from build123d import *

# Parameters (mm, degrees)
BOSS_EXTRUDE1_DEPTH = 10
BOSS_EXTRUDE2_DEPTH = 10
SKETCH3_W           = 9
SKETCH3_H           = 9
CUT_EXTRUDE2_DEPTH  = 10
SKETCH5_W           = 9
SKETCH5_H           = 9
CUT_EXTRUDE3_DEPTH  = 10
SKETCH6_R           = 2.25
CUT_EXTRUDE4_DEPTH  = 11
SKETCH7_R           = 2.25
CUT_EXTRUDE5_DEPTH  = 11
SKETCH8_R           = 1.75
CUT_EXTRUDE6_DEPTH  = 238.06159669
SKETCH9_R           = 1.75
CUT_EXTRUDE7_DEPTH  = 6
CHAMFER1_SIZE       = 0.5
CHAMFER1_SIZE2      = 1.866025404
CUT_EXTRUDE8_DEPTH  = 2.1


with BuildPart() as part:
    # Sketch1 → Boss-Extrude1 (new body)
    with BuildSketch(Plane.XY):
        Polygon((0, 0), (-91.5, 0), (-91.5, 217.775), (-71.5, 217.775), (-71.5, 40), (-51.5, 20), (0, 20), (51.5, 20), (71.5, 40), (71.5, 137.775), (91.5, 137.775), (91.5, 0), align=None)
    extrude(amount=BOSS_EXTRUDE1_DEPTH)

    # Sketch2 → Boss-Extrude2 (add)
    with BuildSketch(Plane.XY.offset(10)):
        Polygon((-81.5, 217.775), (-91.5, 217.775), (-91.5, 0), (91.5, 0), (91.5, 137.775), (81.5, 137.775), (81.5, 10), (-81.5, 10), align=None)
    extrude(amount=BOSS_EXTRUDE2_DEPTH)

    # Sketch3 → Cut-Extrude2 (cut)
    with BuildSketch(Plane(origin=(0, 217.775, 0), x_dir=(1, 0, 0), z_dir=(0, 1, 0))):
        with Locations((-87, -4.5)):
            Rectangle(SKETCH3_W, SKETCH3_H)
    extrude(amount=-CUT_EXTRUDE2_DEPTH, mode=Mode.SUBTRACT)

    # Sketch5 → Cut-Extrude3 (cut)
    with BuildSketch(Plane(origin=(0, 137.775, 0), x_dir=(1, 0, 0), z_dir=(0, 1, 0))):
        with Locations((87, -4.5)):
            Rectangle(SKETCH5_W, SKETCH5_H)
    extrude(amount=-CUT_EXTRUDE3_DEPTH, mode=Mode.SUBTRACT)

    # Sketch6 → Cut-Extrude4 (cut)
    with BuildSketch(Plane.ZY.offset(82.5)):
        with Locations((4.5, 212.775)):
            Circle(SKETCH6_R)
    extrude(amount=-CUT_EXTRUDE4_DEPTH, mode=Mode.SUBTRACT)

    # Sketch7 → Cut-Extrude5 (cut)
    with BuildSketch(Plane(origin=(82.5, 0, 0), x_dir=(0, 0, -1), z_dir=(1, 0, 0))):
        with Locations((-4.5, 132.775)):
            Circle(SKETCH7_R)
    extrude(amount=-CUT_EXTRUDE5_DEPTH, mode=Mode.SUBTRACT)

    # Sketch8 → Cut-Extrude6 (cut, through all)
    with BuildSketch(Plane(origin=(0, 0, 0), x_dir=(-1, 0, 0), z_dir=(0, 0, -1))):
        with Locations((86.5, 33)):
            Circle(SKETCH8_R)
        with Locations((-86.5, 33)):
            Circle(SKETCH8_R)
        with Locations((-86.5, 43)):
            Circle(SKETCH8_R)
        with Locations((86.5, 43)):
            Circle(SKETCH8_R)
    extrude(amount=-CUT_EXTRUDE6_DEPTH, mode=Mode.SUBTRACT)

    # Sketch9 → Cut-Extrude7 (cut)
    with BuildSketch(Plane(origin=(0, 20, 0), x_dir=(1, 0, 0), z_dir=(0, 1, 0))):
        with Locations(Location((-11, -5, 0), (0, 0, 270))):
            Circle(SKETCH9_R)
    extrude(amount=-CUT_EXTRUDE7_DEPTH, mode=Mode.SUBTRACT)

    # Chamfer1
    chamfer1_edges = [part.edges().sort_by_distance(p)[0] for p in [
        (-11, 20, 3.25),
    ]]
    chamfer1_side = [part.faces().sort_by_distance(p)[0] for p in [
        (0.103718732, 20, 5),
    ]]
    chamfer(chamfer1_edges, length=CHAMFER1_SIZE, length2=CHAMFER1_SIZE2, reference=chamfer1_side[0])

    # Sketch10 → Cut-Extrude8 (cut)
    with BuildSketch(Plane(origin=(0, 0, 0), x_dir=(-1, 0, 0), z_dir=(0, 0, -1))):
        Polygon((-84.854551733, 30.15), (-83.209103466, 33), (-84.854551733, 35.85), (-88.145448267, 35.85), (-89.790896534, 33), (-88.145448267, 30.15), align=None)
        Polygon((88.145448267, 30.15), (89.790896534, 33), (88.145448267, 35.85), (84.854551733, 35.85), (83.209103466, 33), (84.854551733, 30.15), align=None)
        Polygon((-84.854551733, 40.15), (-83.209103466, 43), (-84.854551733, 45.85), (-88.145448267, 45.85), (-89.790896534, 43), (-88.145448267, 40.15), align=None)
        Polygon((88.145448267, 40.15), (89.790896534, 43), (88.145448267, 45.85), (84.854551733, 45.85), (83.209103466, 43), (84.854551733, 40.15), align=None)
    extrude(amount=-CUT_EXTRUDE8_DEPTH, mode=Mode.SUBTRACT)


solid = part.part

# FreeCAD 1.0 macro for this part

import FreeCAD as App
import Part
import Sketcher

V = App.Vector
Q = App.Units.Quantity


def edges_at(feature, points):
    """Names of the edges that pass closest to the given points."""
    edges = feature.Shape.Edges
    near = lambda p: min(range(len(edges)), key=lambda i: edges[i].distToShape(Part.Vertex(*p))[0])
    return sorted({f"Edge{near(p) + 1}" for p in points})

doc = App.newDocument("Part")
body = doc.addObject("PartDesign::Body", "Body")

# Sketch on XY plane
sketch1 = body.newObject("Sketcher::SketchObject", "Sketch")
sketch1.AttachmentSupport = (doc.getObject("XY_Plane"), [""])
sketch1.MapMode = "FlatFace"
sketch1.addGeometry(Part.LineSegment(V(-92, 0, 0), V(92, 0, 0)), False)
sketch1.addGeometry(Part.LineSegment(V(92, 0, 0), V(92, 138, 0)), False)
sketch1.addGeometry(Part.LineSegment(V(92, 138, 0), V(72, 138, 0)), False)
sketch1.addGeometry(Part.LineSegment(V(72, 138, 0), V(72, 40, 0)), False)
sketch1.addGeometry(Part.LineSegment(V(72, 40, 0), V(52, 20, 0)), False)
sketch1.addGeometry(Part.LineSegment(V(52, 20, 0), V(-52, 20, 0)), False)
sketch1.addGeometry(Part.LineSegment(V(-52, 20, 0), V(-72, 40, 0)), False)
sketch1.addGeometry(Part.LineSegment(V(-72, 40, 0), V(-72, 218, 0)), False)
sketch1.addGeometry(Part.LineSegment(V(-72, 218, 0), V(-92, 218, 0)), False)
sketch1.addGeometry(Part.LineSegment(V(-92, 218, 0), V(-92, 0, 0)), False)
sketch1.addConstraint(Sketcher.Constraint("Coincident", 0, 2, 1, 1))
sketch1.addConstraint(Sketcher.Constraint("Coincident", 1, 2, 2, 1))
sketch1.addConstraint(Sketcher.Constraint("Coincident", 2, 2, 3, 1))
sketch1.addConstraint(Sketcher.Constraint("Coincident", 3, 2, 4, 1))
sketch1.addConstraint(Sketcher.Constraint("Coincident", 4, 2, 5, 1))
sketch1.addConstraint(Sketcher.Constraint("Coincident", 5, 2, 6, 1))
sketch1.addConstraint(Sketcher.Constraint("Coincident", 6, 2, 7, 1))
sketch1.addConstraint(Sketcher.Constraint("Coincident", 7, 2, 8, 1))
sketch1.addConstraint(Sketcher.Constraint("Coincident", 8, 2, 9, 1))
sketch1.addConstraint(Sketcher.Constraint("Coincident", 9, 2, 0, 1))
sketch1.addConstraint(Sketcher.Constraint("Horizontal", 0))
sketch1.addConstraint(Sketcher.Constraint("Vertical", 1))
sketch1.addConstraint(Sketcher.Constraint("Horizontal", 2))
sketch1.addConstraint(Sketcher.Constraint("Vertical", 3))
sketch1.addConstraint(Sketcher.Constraint("Horizontal", 5))
sketch1.addConstraint(Sketcher.Constraint("Vertical", 7))
sketch1.addConstraint(Sketcher.Constraint("Horizontal", 8))
sketch1.addConstraint(Sketcher.Constraint("Vertical", 9))
sketch1.addConstraint(Sketcher.Constraint("Symmetric", 0, 2, 9, 2, -1, 1))
sketch1.addConstraint(Sketcher.Constraint("Symmetric", 3, 2, 6, 2, -2))
sketch1.addConstraint(Sketcher.Constraint("Perpendicular", 4, 6))
sketch1.addConstraint(Sketcher.Constraint("Equal", 4, 6))
sketch1.addConstraint(Sketcher.Constraint("DistanceX", 0, 1, 0, 2, 183.0))
sketch1.addConstraint(Sketcher.Constraint("DistanceX", 2, 2, 2, 1, 20.0))
sketch1.addConstraint(Sketcher.Constraint("DistanceX", 5, 2, 5, 1, 103.0))
sketch1.addConstraint(Sketcher.Constraint("DistanceY", -1, 1, 3, 2, 40.0))
sketch1.addConstraint(Sketcher.Constraint("DistanceY", 2, 2, 7, 2, 80.0))
sketch1.addConstraint(Sketcher.Constraint("DistanceY", 1, 1, 1, 2, 137.775))
pad1 = body.newObject("PartDesign::Pad", "Pad")
pad1.Profile = sketch1
pad1.Length = 10

# Sketch on XY plane
sketch2 = body.newObject("Sketcher::SketchObject", "Sketch001")
sketch2.AttachmentSupport = (doc.getObject("XY_Plane"), [""])
sketch2.MapMode = "FlatFace"
sketch2.AttachmentOffset = App.Placement(V(0, 0, 10), App.Rotation())
sketch2.addGeometry(Part.LineSegment(V(-82, 218, 0), V(-92, 218, 0)), False)
sketch2.addGeometry(Part.LineSegment(V(-92, 218, 0), V(-92, 0, 0)), False)
sketch2.addGeometry(Part.LineSegment(V(-92, 0, 0), V(92, 0, 0)), False)
sketch2.addGeometry(Part.LineSegment(V(92, 0, 0), V(92, 138, 0)), False)
sketch2.addGeometry(Part.LineSegment(V(92, 138, 0), V(82, 138, 0)), False)
sketch2.addGeometry(Part.LineSegment(V(82, 138, 0), V(82, 10, 0)), False)
sketch2.addGeometry(Part.LineSegment(V(82, 10, 0), V(-82, 10, 0)), False)
sketch2.addGeometry(Part.LineSegment(V(-82, 10, 0), V(-82, 218, 0)), False)
sketch2.addConstraint(Sketcher.Constraint("Coincident", 0, 2, 1, 1))
sketch2.addConstraint(Sketcher.Constraint("Coincident", 1, 2, 2, 1))
sketch2.addConstraint(Sketcher.Constraint("Coincident", 2, 2, 3, 1))
sketch2.addConstraint(Sketcher.Constraint("Coincident", 3, 2, 4, 1))
sketch2.addConstraint(Sketcher.Constraint("Coincident", 4, 2, 5, 1))
sketch2.addConstraint(Sketcher.Constraint("Coincident", 5, 2, 6, 1))
sketch2.addConstraint(Sketcher.Constraint("Coincident", 6, 2, 7, 1))
sketch2.addConstraint(Sketcher.Constraint("Coincident", 7, 2, 0, 1))
sketch2.addConstraint(Sketcher.Constraint("Horizontal", 0))
sketch2.addConstraint(Sketcher.Constraint("Vertical", 1))
sketch2.addConstraint(Sketcher.Constraint("Horizontal", 2))
sketch2.addConstraint(Sketcher.Constraint("Vertical", 3))
sketch2.addConstraint(Sketcher.Constraint("Horizontal", 4))
sketch2.addConstraint(Sketcher.Constraint("Vertical", 5))
sketch2.addConstraint(Sketcher.Constraint("Horizontal", 6))
sketch2.addConstraint(Sketcher.Constraint("Vertical", 7))
sketch2.addConstraint(Sketcher.Constraint("Symmetric", 1, 2, 2, 2, -1, 1))
sketch2.addConstraint(Sketcher.Constraint("Equal", 0, 4))
sketch2.addConstraint(Sketcher.Constraint("DistanceX", 0, 2, 0, 1, 10.0))
sketch2.addConstraint(Sketcher.Constraint("DistanceX", 2, 1, 2, 2, 183.0))
sketch2.addConstraint(Sketcher.Constraint("DistanceY", -1, 1, 5, 2, 10.0))
sketch2.addConstraint(Sketcher.Constraint("DistanceY", 3, 2, 0, 2, 80.0))
sketch2.addConstraint(Sketcher.Constraint("DistanceY", 1, 2, 1, 1, 217.775))
pad2 = body.newObject("PartDesign::Pad", "Pad001")
pad2.Profile = sketch2
pad2.Length = 10

# Sketch on XZ plane
sketch3 = body.newObject("Sketcher::SketchObject", "Sketch002")
sketch3.AttachmentSupport = (doc.getObject("XZ_Plane"), [""])
sketch3.MapMode = "FlatFace"
sketch3.AttachmentOffset = App.Placement(V(0, 0, -217.775), App.Rotation())
sketch3.addGeometry(Part.LineSegment(V(-92, 0, 0), V(-92, 9, 0)), False)
sketch3.addGeometry(Part.LineSegment(V(-92, 9, 0), V(-82, 9, 0)), False)
sketch3.addGeometry(Part.LineSegment(V(-82, 9, 0), V(-82, 0, 0)), False)
sketch3.addGeometry(Part.LineSegment(V(-82, 0, 0), V(-92, 0, 0)), False)
sketch3.addConstraint(Sketcher.Constraint("Coincident", 0, 2, 1, 1))
sketch3.addConstraint(Sketcher.Constraint("Coincident", 1, 2, 2, 1))
sketch3.addConstraint(Sketcher.Constraint("Coincident", 2, 2, 3, 1))
sketch3.addConstraint(Sketcher.Constraint("Coincident", 3, 2, 0, 1))
sketch3.addConstraint(Sketcher.Constraint("Vertical", 0))
sketch3.addConstraint(Sketcher.Constraint("Horizontal", 1))
sketch3.addConstraint(Sketcher.Constraint("Vertical", 2))
sketch3.addConstraint(Sketcher.Constraint("Horizontal", 3))
sketch3.addConstraint(Sketcher.Constraint("PointOnObject", 2, 2, -1))
sketch3.addConstraint(Sketcher.Constraint("Equal", 3, 0))
sketch3.addConstraint(Sketcher.Constraint("DistanceX", 1, 1, 1, 2, 9.0))
sketch3.addConstraint(Sketcher.Constraint("DistanceX", 0, 2, -1, 1, 91.5))
pocket1 = body.newObject("PartDesign::Pocket", "Pocket")
pocket1.Profile = sketch3
pocket1.Length = 10
pocket1.Reversed = True

# Sketch on XZ plane
sketch4 = body.newObject("Sketcher::SketchObject", "Sketch003")
sketch4.AttachmentSupport = (doc.getObject("XZ_Plane"), [""])
sketch4.MapMode = "FlatFace"
sketch4.AttachmentOffset = App.Placement(V(0, 0, -137.775), App.Rotation())
sketch4.addGeometry(Part.LineSegment(V(82, 0, 0), V(82, 9, 0)), False)
sketch4.addGeometry(Part.LineSegment(V(82, 9, 0), V(92, 9, 0)), False)
sketch4.addGeometry(Part.LineSegment(V(92, 9, 0), V(92, 0, 0)), False)
sketch4.addGeometry(Part.LineSegment(V(92, 0, 0), V(82, 0, 0)), False)
sketch4.addConstraint(Sketcher.Constraint("Coincident", 0, 2, 1, 1))
sketch4.addConstraint(Sketcher.Constraint("Coincident", 1, 2, 2, 1))
sketch4.addConstraint(Sketcher.Constraint("Coincident", 2, 2, 3, 1))
sketch4.addConstraint(Sketcher.Constraint("Coincident", 3, 2, 0, 1))
sketch4.addConstraint(Sketcher.Constraint("Vertical", 0))
sketch4.addConstraint(Sketcher.Constraint("Horizontal", 1))
sketch4.addConstraint(Sketcher.Constraint("Vertical", 2))
sketch4.addConstraint(Sketcher.Constraint("Horizontal", 3))
sketch4.addConstraint(Sketcher.Constraint("PointOnObject", 2, 2, -1))
sketch4.addConstraint(Sketcher.Constraint("Equal", 3, 0))
sketch4.addConstraint(Sketcher.Constraint("DistanceX", 1, 1, 1, 2, 9.0))
sketch4.addConstraint(Sketcher.Constraint("DistanceX", -1, 1, 0, 2, 82.5))
pocket2 = body.newObject("PartDesign::Pocket", "Pocket001")
pocket2.Profile = sketch4
pocket2.Length = 10
pocket2.Reversed = True

# Sketch on YZ plane
sketch5 = body.newObject("Sketcher::SketchObject", "Sketch004")
sketch5.AttachmentSupport = (doc.getObject("YZ_Plane"), [""])
sketch5.MapMode = "FlatFace"
sketch5.AttachmentOffset = App.Placement(V(0, 0, -82.5), App.Rotation())
sketch5.addGeometry(Part.Circle(V(212.8, 4.5, 0), V(0, 0, 1), 2.2), False)
sketch5.addConstraint(Sketcher.Constraint("Diameter", 0, 4.5))
sketch5.addConstraint(Sketcher.Constraint("DistanceY", -1, 1, 0, 3, 4.5))
sketch5.addConstraint(Sketcher.Constraint("DistanceX", -1, 1, 0, 3, 212.775))
pocket3 = body.newObject("PartDesign::Pocket", "Pocket002")
pocket3.Profile = sketch5
pocket3.Length = 11
pocket3.Reversed = True

# Sketch on YZ plane
sketch6 = body.newObject("Sketcher::SketchObject", "Sketch005")
sketch6.AttachmentSupport = (doc.getObject("YZ_Plane"), [""])
sketch6.MapMode = "FlatFace"
sketch6.AttachmentOffset = App.Placement(V(0, 0, 82.5), App.Rotation())
sketch6.addGeometry(Part.Circle(V(132.8, 4.5, 0), V(0, 0, 1), 2.2), False)
sketch6.addConstraint(Sketcher.Constraint("Diameter", 0, 4.5))
sketch6.addConstraint(Sketcher.Constraint("DistanceY", -1, 1, 0, 3, 4.5))
sketch6.addConstraint(Sketcher.Constraint("DistanceX", -1, 1, 0, 3, 132.775))
pocket4 = body.newObject("PartDesign::Pocket", "Pocket003")
pocket4.Profile = sketch6
pocket4.Length = 11

# Sketch on XY plane
sketch7 = body.newObject("Sketcher::SketchObject", "Sketch006")
sketch7.AttachmentSupport = (doc.getObject("XY_Plane"), [""])
sketch7.MapMode = "FlatFace"
sketch7.addGeometry(Part.Circle(V(-86.5, 33, 0), V(0, 0, 1), 1.8), False)
sketch7.addGeometry(Part.Circle(V(86.5, 33, 0), V(0, 0, 1), 1.8), False)
sketch7.addGeometry(Part.Circle(V(86.5, 43, 0), V(0, 0, 1), 1.8), False)
sketch7.addGeometry(Part.Circle(V(-86.5, 43, 0), V(0, 0, 1), 1.8), False)
sketch7.addConstraint(Sketcher.Constraint("Equal", 0, 1))
sketch7.addConstraint(Sketcher.Constraint("Equal", 1, 2))
sketch7.addConstraint(Sketcher.Constraint("Equal", 2, 3))
sketch7.addConstraint(Sketcher.Constraint("Symmetric", 0, 3, 1, 3, -2))
sketch7.addConstraint(Sketcher.Constraint("Symmetric", 2, 3, 3, 3, -2))
sketch7.addConstraint(Sketcher.Constraint("Vertical", 1, 3, 2, 3))
sketch7.addConstraint(Sketcher.Constraint("Diameter", 0, 3.5))
sketch7.addConstraint(Sketcher.Constraint("DistanceY", -1, 1, 0, 3, 33.0))
sketch7.addConstraint(Sketcher.Constraint("DistanceY", -1, 1, 2, 3, 43.0))
sketch7.addConstraint(Sketcher.Constraint("DistanceX", 0, 3, 1, 3, 173.0))
pocket5 = body.newObject("PartDesign::Pocket", "Pocket004")
pocket5.Profile = sketch7
pocket5.Type = "ThroughAll"
pocket5.Reversed = True

# Sketch on XZ plane
sketch8 = body.newObject("Sketcher::SketchObject", "Sketch007")
sketch8.AttachmentSupport = (doc.getObject("XZ_Plane"), [""])
sketch8.MapMode = "FlatFace"
sketch8.AttachmentOffset = App.Placement(V(0, 0, -20), App.Rotation())
sketch8.addGeometry(Part.Circle(V(-11, 5, 0), V(0, 0, 1), 1.8), False)
sketch8.addConstraint(Sketcher.Constraint("Diameter", 0, 3.5))
sketch8.addConstraint(Sketcher.Constraint("DistanceX", 0, 3, -1, 1, 11.0))
sketch8.addConstraint(Sketcher.Constraint("DistanceY", -1, 1, 0, 3, 5.0))
pocket6 = body.newObject("PartDesign::Pocket", "Pocket005")
pocket6.Profile = sketch8
pocket6.Length = 6
pocket6.Reversed = True
doc.recompute()

chamfer = body.newObject("PartDesign::Chamfer", "Chamfer")
chamfer.Base = (pocket6, edges_at(pocket6, [(-11, 20, 3.25)]))
chamfer.ChamferType = "Two distances"
chamfer.Size = 0.5
chamfer.Size2 = 1.866025

# Sketch on XY plane
sketch9 = body.newObject("Sketcher::SketchObject", "Sketch008")
sketch9.AttachmentSupport = (doc.getObject("XY_Plane"), [""])
sketch9.MapMode = "FlatFace"
sketch9.addGeometry(Part.LineSegment(V(84.9, 30.1, 0), V(83.2, 33, 0)), False)
sketch9.addGeometry(Part.LineSegment(V(83.2, 33, 0), V(84.9, 35.9, 0)), False)
sketch9.addGeometry(Part.LineSegment(V(84.9, 35.9, 0), V(88.1, 35.9, 0)), False)
sketch9.addGeometry(Part.LineSegment(V(88.1, 35.9, 0), V(89.8, 33, 0)), False)
sketch9.addGeometry(Part.LineSegment(V(89.8, 33, 0), V(88.1, 30.1, 0)), False)
sketch9.addGeometry(Part.LineSegment(V(88.1, 30.1, 0), V(84.9, 30.1, 0)), False)
sketch9.addGeometry(Part.LineSegment(V(-88.1, 30.1, 0), V(-89.8, 33, 0)), False)
sketch9.addGeometry(Part.LineSegment(V(-89.8, 33, 0), V(-88.1, 35.9, 0)), False)
sketch9.addGeometry(Part.LineSegment(V(-88.1, 35.9, 0), V(-84.9, 35.9, 0)), False)
sketch9.addGeometry(Part.LineSegment(V(-84.9, 35.9, 0), V(-83.2, 33, 0)), False)
sketch9.addGeometry(Part.LineSegment(V(-83.2, 33, 0), V(-84.9, 30.1, 0)), False)
sketch9.addGeometry(Part.LineSegment(V(-84.9, 30.1, 0), V(-88.1, 30.1, 0)), False)
sketch9.addGeometry(Part.LineSegment(V(84.9, 40.1, 0), V(83.2, 43, 0)), False)
sketch9.addGeometry(Part.LineSegment(V(83.2, 43, 0), V(84.9, 45.9, 0)), False)
sketch9.addGeometry(Part.LineSegment(V(84.9, 45.9, 0), V(88.1, 45.9, 0)), False)
sketch9.addGeometry(Part.LineSegment(V(88.1, 45.9, 0), V(89.8, 43, 0)), False)
sketch9.addGeometry(Part.LineSegment(V(89.8, 43, 0), V(88.1, 40.1, 0)), False)
sketch9.addGeometry(Part.LineSegment(V(88.1, 40.1, 0), V(84.9, 40.1, 0)), False)
sketch9.addGeometry(Part.LineSegment(V(-88.1, 40.1, 0), V(-89.8, 43, 0)), False)
sketch9.addGeometry(Part.LineSegment(V(-89.8, 43, 0), V(-88.1, 45.9, 0)), False)
sketch9.addGeometry(Part.LineSegment(V(-88.1, 45.9, 0), V(-84.9, 45.9, 0)), False)
sketch9.addGeometry(Part.LineSegment(V(-84.9, 45.9, 0), V(-83.2, 43, 0)), False)
sketch9.addGeometry(Part.LineSegment(V(-83.2, 43, 0), V(-84.9, 40.1, 0)), False)
sketch9.addGeometry(Part.LineSegment(V(-84.9, 40.1, 0), V(-88.1, 40.1, 0)), False)
sketch9.addConstraint(Sketcher.Constraint("Coincident", 0, 2, 1, 1))
sketch9.addConstraint(Sketcher.Constraint("Coincident", 1, 2, 2, 1))
sketch9.addConstraint(Sketcher.Constraint("Coincident", 2, 2, 3, 1))
sketch9.addConstraint(Sketcher.Constraint("Coincident", 3, 2, 4, 1))
sketch9.addConstraint(Sketcher.Constraint("Coincident", 4, 2, 5, 1))
sketch9.addConstraint(Sketcher.Constraint("Coincident", 5, 2, 0, 1))
sketch9.addConstraint(Sketcher.Constraint("Coincident", 6, 2, 7, 1))
sketch9.addConstraint(Sketcher.Constraint("Coincident", 7, 2, 8, 1))
sketch9.addConstraint(Sketcher.Constraint("Coincident", 8, 2, 9, 1))
sketch9.addConstraint(Sketcher.Constraint("Coincident", 9, 2, 10, 1))
sketch9.addConstraint(Sketcher.Constraint("Coincident", 10, 2, 11, 1))
sketch9.addConstraint(Sketcher.Constraint("Coincident", 11, 2, 6, 1))
sketch9.addConstraint(Sketcher.Constraint("Coincident", 12, 2, 13, 1))
sketch9.addConstraint(Sketcher.Constraint("Coincident", 13, 2, 14, 1))
sketch9.addConstraint(Sketcher.Constraint("Coincident", 14, 2, 15, 1))
sketch9.addConstraint(Sketcher.Constraint("Coincident", 15, 2, 16, 1))
sketch9.addConstraint(Sketcher.Constraint("Coincident", 16, 2, 17, 1))
sketch9.addConstraint(Sketcher.Constraint("Coincident", 17, 2, 12, 1))
sketch9.addConstraint(Sketcher.Constraint("Coincident", 18, 2, 19, 1))
sketch9.addConstraint(Sketcher.Constraint("Coincident", 19, 2, 20, 1))
sketch9.addConstraint(Sketcher.Constraint("Coincident", 20, 2, 21, 1))
sketch9.addConstraint(Sketcher.Constraint("Coincident", 21, 2, 22, 1))
sketch9.addConstraint(Sketcher.Constraint("Coincident", 22, 2, 23, 1))
sketch9.addConstraint(Sketcher.Constraint("Coincident", 23, 2, 18, 1))
sketch9.addConstraint(Sketcher.Constraint("Horizontal", 2))
sketch9.addConstraint(Sketcher.Constraint("Horizontal", 5))
sketch9.addConstraint(Sketcher.Constraint("Horizontal", 8))
sketch9.addConstraint(Sketcher.Constraint("Horizontal", 11))
sketch9.addConstraint(Sketcher.Constraint("Horizontal", 14))
sketch9.addConstraint(Sketcher.Constraint("Horizontal", 17))
sketch9.addConstraint(Sketcher.Constraint("Horizontal", 20))
sketch9.addConstraint(Sketcher.Constraint("Horizontal", 23))
sketch9.addConstraint(Sketcher.Constraint("Symmetric", 3, 2, 6, 2, -2))
sketch9.addConstraint(Sketcher.Constraint("Symmetric", 2, 2, 7, 2, -2))
sketch9.addConstraint(Sketcher.Constraint("Symmetric", 0, 2, 9, 2, -2))
sketch9.addConstraint(Sketcher.Constraint("Symmetric", 5, 2, 10, 2, -2))
sketch9.addConstraint(Sketcher.Constraint("Symmetric", 15, 2, 18, 2, -2))
sketch9.addConstraint(Sketcher.Constraint("Symmetric", 14, 2, 19, 2, -2))
sketch9.addConstraint(Sketcher.Constraint("Symmetric", 12, 2, 21, 2, -2))
sketch9.addConstraint(Sketcher.Constraint("Symmetric", 17, 2, 22, 2, -2))
sketch9.addConstraint(Sketcher.Constraint("Parallel", 0, 3))
sketch9.addConstraint(Sketcher.Constraint("Parallel", 1, 4))
sketch9.addConstraint(Sketcher.Constraint("Parallel", 3, 6))
sketch9.addConstraint(Sketcher.Constraint("Parallel", 4, 7))
sketch9.addConstraint(Sketcher.Constraint("Parallel", 6, 9))
sketch9.addConstraint(Sketcher.Constraint("Parallel", 9, 12))
sketch9.addConstraint(Sketcher.Constraint("Parallel", 10, 13))
sketch9.addConstraint(Sketcher.Constraint("Parallel", 12, 15))
sketch9.addConstraint(Sketcher.Constraint("Parallel", 13, 16))
sketch9.addConstraint(Sketcher.Constraint("Parallel", 15, 18))
sketch9.addConstraint(Sketcher.Constraint("Parallel", 18, 21))
sketch9.addConstraint(Sketcher.Constraint("Horizontal", 0, 2, 3, 2))
sketch9.addConstraint(Sketcher.Constraint("Horizontal", 12, 2, 15, 2))
sketch9.addConstraint(Sketcher.Constraint("Vertical", 2, 2, 4, 2))
sketch9.addConstraint(Sketcher.Constraint("Vertical", 0, 2, 12, 2))
sketch9.addConstraint(Sketcher.Constraint("Vertical", 5, 2, 13, 2))
sketch9.addConstraint(Sketcher.Constraint("Vertical", 4, 2, 14, 2))
sketch9.addConstraint(Sketcher.Constraint("Vertical", 14, 2, 16, 2))
sketch9.addConstraint(Sketcher.Constraint("Angle", 0, Q("120 deg")))
sketch9.addConstraint(Sketcher.Constraint("DistanceY", -1, 1, 0, 2, 33.0))
sketch9.addConstraint(Sketcher.Constraint("DistanceY", -1, 1, 12, 2, 43.0))
sketch9.addConstraint(Sketcher.Constraint("DistanceX", 6, 2, 0, 2, 173.0))
sketch9.addConstraint(Sketcher.Constraint("DistanceY", 4, 2, 2, 2, 5.7))
sketch9.addConstraint(Sketcher.Constraint("DistanceX", 2, 1, 2, 2, 3.290897))
pocket7 = body.newObject("PartDesign::Pocket", "Pocket006")
pocket7.Profile = sketch9
pocket7.Length = 2.1
pocket7.Reversed = True

doc.recompute()
